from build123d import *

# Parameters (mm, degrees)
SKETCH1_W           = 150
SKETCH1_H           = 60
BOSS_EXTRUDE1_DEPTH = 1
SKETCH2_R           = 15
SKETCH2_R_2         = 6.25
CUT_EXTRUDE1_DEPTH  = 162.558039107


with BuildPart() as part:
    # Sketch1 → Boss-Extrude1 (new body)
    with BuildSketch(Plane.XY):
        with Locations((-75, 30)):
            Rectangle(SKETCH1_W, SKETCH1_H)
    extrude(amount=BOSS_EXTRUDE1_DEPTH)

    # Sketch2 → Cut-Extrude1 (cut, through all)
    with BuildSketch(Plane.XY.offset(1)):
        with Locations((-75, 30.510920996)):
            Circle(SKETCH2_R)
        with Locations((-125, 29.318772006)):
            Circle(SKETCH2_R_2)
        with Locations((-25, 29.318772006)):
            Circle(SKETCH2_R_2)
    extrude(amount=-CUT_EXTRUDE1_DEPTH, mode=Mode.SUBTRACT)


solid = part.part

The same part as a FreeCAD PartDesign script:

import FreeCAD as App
import Part
import Sketcher
from FreeCAD import Vector
Q = App.Units.Quantity

doc = App.newDocument("Part")
params = doc.addObject("Spreadsheet::Sheet", "Params")
for row, (alias, value) in enumerate([
    ("sketch1_width", "150 mm"),
    ("sketch1_height", "60 mm"),
    ("pad1_length", "1 mm"),
    ("sketch2_diameter", "30 mm"),
    ("sketch2_diameter2", "12.5 mm"),
], start=1):
    params.set(f"A{row}", alias)
    params.set(f"B{row}", "=" + value)
    params.setAlias(f"B{row}", alias)

body = doc.addObject("PartDesign::Body", "Body")

# Sketch on XY plane
sketch1 = doc.addObject("Sketcher::SketchObject", "Sketch")
body.addObject(sketch1)
sketch1.AttachmentSupport = (doc.XY_Plane, [""])
sketch1.MapMode = "FlatFace"
sketch1.addGeometry(Part.LineSegment(Vector(-150, 60, 0), Vector(-150, 0, 0)), False)
sketch1.addGeometry(Part.LineSegment(Vector(-150, 0, 0), Vector(0, 0, 0)), False)
sketch1.addGeometry(Part.LineSegment(Vector(0, 0, 0), Vector(0, 60, 0)), False)
sketch1.addGeometry(Part.LineSegment(Vector(0, 60, 0), Vector(-150, 60, 0)), False)
sketch1.addConstraint(Sketcher.Constraint("Coincident", 0, 2, 1, 1))
sketch1.addConstraint(Sketcher.Constraint("Coincident", 1, 2, 2, 1))
sketch1.addConstraint(Sketcher.Constraint("Coincident", 2, 2, 3, 1))
sketch1.addConstraint(Sketcher.Constraint("Coincident", 3, 2, 0, 1))
sketch1.addConstraint(Sketcher.Constraint("Vertical", 0))
sketch1.addConstraint(Sketcher.Constraint("Horizontal", 1))
sketch1.addConstraint(Sketcher.Constraint("Vertical", 2))
sketch1.addConstraint(Sketcher.Constraint("Horizontal", 3))
sketch1.addConstraint(Sketcher.Constraint("Coincident", 1, 2, -1, 1))
sketch1.addConstraint(Sketcher.Constraint("DistanceX", 1, 1, 1, 2, Q("150 mm")))
sketch1.addConstraint(Sketcher.Constraint("DistanceY", 0, 2, 0, 1, Q("60 mm")))
sketch1.setExpression("Constraints[9]", "Params.sketch1_width")
sketch1.setExpression("Constraints[10]", "Params.sketch1_height")
pad1 = doc.addObject("PartDesign::Pad", "Pad")
body.addObject(pad1)
pad1.Profile = sketch1
pad1.setExpression("Length", "Params.pad1_length")

# Sketch on XY plane
sketch2 = doc.addObject("Sketcher::SketchObject", "Sketch001")
body.addObject(sketch2)
sketch2.AttachmentSupport = (doc.XY_Plane, [""])
sketch2.MapMode = "FlatFace"
sketch2.AttachmentOffset = App.Placement(Vector(0, 0, 1), App.Rotation())
sketch2.addGeometry(Part.Circle(Vector(-75, 31, 0), Vector(0, 0, 1), 15), False)
sketch2.addGeometry(Part.Circle(Vector(-125, 29, 0), Vector(0, 0, 1), 6), False)
sketch2.addGeometry(Part.Circle(Vector(-25, 29, 0), Vector(0, 0, 1), 6), False)
sketch2.addConstraint(Sketcher.Constraint("Equal", 1, 2))
sketch2.addConstraint(Sketcher.Constraint("Horizontal", 1, 3, 2, 3))
sketch2.addConstraint(Sketcher.Constraint("Diameter", 0, Q("30 mm")))
sketch2.addConstraint(Sketcher.Constraint("Diameter", 1, Q("12.5 mm")))
sketch2.addConstraint(Sketcher.Constraint("DistanceX", 0, 3, -1, 1, Q("75 mm")))
sketch2.addConstraint(Sketcher.Constraint("DistanceX", 1, 3, -1, 1, Q("125 mm")))
sketch2.addConstraint(Sketcher.Constraint("DistanceX", 2, 3, -1, 1, Q("25 mm")))
sketch2.addConstraint(Sketcher.Constraint("DistanceY", -1, 1, 0, 3, Q("30.510921 mm")))
sketch2.addConstraint(Sketcher.Constraint("DistanceY", 1, 3, 0, 3, Q("1.192149 mm")))
sketch2.setExpression("Constraints[2]", "Params.sketch2_diameter")
sketch2.setExpression("Constraints[3]", "Params.sketch2_diameter2")
pocket1 = doc.addObject("PartDesign::Pocket", "Pocket")
body.addObject(pocket1)
pocket1.Profile = sketch2
pocket1.Type = "ThroughAll"

doc.recompute()
